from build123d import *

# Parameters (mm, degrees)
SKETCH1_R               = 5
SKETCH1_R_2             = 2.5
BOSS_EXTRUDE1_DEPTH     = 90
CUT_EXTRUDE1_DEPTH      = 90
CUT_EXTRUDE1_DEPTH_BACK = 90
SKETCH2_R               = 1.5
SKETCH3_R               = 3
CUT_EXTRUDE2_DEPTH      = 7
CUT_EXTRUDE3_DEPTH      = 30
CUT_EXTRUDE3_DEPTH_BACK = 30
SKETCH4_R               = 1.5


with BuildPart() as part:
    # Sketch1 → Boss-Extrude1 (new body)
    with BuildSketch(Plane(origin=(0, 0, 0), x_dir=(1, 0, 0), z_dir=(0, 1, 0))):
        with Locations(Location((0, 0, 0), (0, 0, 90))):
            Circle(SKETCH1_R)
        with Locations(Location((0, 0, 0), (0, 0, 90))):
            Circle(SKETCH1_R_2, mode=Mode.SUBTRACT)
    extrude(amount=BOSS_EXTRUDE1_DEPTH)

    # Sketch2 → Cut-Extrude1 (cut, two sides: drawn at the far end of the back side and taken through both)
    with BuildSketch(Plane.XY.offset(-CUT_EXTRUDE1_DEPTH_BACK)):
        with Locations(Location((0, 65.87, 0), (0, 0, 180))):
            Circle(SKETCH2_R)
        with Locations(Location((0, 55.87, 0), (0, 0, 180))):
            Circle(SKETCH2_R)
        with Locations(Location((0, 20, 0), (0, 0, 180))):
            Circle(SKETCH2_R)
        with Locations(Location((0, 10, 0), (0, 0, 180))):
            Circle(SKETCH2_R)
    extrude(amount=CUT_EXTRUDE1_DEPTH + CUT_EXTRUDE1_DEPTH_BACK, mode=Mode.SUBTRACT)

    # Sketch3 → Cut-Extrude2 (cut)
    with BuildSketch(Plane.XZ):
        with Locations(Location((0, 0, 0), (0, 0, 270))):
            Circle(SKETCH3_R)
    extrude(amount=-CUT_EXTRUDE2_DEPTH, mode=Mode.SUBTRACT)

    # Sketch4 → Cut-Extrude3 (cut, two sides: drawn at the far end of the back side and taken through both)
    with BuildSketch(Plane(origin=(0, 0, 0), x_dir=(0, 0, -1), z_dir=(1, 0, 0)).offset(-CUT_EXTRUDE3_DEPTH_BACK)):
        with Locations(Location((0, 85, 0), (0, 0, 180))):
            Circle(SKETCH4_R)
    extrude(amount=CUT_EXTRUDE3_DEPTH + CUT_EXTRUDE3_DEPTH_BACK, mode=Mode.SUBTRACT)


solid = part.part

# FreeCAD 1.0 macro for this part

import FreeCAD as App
import Part
import Sketcher

V = App.Vector
Q = App.Units.Quantity

doc = App.newDocument("Part")
body = doc.addObject("PartDesign::Body", "Body")

sketch1 = body.newObject("Sketcher::SketchObject", "Sketch")
sketch1.AttachmentSupport = (doc.getObject("XZ_Plane"), [""])
sketch1.MapMode = "FlatFace"
sketch1.addGeometry([
    Part.Circle(V(0, 0, 0), V(0, 0, 1), 5),
    Part.Circle(V(0, 0, 0), V(0, 0, 1), 2.5),
], False)
sketch1.addConstraint([
    Sketcher.Constraint("Coincident", 0, 3, -1, 1),
    Sketcher.Constraint("Coincident", 1, 3, -1, 1),
    Sketcher.Constraint("Diameter", 0, Q("10 mm")),
    Sketcher.Constraint("Diameter", 1, Q("5 mm")),
])
pad1 = body.newObject("PartDesign::Pad", "Pad")
pad1.Profile = sketch1
pad1.Length = 90
pad1.Reversed = True

sketch2 = body.newObject("Sketcher::SketchObject", "Sketch001")
sketch2.AttachmentSupport = (doc.getObject("XY_Plane"), [""])
sketch2.MapMode = "FlatFace"
sketch2.addGeometry([
    Part.Circle(V(0, 65.9, 0), V(0, 0, 1), 1.5),
    Part.Circle(V(0, 55.9, 0), V(0, 0, 1), 1.5),
    Part.Circle(V(0, 20, 0), V(0, 0, 1), 1.5),
    Part.Circle(V(0, 10, 0), V(0, 0, 1), 1.5),
], False)
sketch2.addConstraint([
    Sketcher.Constraint("Equal", 0, 1),
    Sketcher.Constraint("Equal", 1, 2),
    Sketcher.Constraint("Equal", 2, 3),
    Sketcher.Constraint("PointOnObject", 0, 3, -2),
    Sketcher.Constraint("PointOnObject", 1, 3, -2),
    Sketcher.Constraint("PointOnObject", 2, 3, -2),
    Sketcher.Constraint("PointOnObject", 3, 3, -2),
    Sketcher.Constraint("Diameter", 0, Q("3 mm")),
    Sketcher.Constraint("DistanceY", -1, 1, 2, 3, Q("20 mm")),
    Sketcher.Constraint("DistanceY", -1, 1, 3, 3, Q("10 mm")),
    Sketcher.Constraint("DistanceY", 1, 3, 0, 3, Q("10 mm")),
    Sketcher.Constraint("DistanceY", -1, 1, 0, 3, Q("65.87 mm")),
])
pocket1 = body.newObject("PartDesign::Pocket", "Pocket")
pocket1.Profile = sketch2
pocket1.Type = "ThroughAll"
pocket1.Midplane = True

sketch3 = body.newObject("Sketcher::SketchObject", "Sketch002")
sketch3.AttachmentSupport = (doc.getObject("XZ_Plane"), [""])
sketch3.MapMode = "FlatFace"
sketch3.addGeometry(Part.Circle(V(0, 0, 0), V(0, 0, 1), 3), False)
sketch3.addConstraint([
    Sketcher.Constraint("Coincident", 0, 3, -1, 1),
    Sketcher.Constraint("Diameter", 0, Q("6 mm")),
])
pocket2 = body.newObject("PartDesign::Pocket", "Pocket001")
pocket2.Profile = sketch3
pocket2.Length = 7

sketch4 = body.newObject("Sketcher::SketchObject", "Sketch003")
sketch4.AttachmentSupport = (doc.getObject("YZ_Plane"), [""])
sketch4.MapMode = "FlatFace"
sketch4.addGeometry(Part.Circle(V(85, 0, 0), V(0, 0, 1), 1.5), False)
sketch4.addConstraint([
    Sketcher.Constraint("PointOnObject", 0, 3, -1),
    Sketcher.Constraint("Diameter", 0, Q("3 mm")),
    Sketcher.Constraint("DistanceX", -1, 1, 0, 3, Q("85 mm")),
])
pocket3 = body.newObject("PartDesign::Pocket", "Pocket002")
pocket3.Profile = sketch4
pocket3.Type = "ThroughAll"
pocket3.Midplane = True

doc.recompute()
